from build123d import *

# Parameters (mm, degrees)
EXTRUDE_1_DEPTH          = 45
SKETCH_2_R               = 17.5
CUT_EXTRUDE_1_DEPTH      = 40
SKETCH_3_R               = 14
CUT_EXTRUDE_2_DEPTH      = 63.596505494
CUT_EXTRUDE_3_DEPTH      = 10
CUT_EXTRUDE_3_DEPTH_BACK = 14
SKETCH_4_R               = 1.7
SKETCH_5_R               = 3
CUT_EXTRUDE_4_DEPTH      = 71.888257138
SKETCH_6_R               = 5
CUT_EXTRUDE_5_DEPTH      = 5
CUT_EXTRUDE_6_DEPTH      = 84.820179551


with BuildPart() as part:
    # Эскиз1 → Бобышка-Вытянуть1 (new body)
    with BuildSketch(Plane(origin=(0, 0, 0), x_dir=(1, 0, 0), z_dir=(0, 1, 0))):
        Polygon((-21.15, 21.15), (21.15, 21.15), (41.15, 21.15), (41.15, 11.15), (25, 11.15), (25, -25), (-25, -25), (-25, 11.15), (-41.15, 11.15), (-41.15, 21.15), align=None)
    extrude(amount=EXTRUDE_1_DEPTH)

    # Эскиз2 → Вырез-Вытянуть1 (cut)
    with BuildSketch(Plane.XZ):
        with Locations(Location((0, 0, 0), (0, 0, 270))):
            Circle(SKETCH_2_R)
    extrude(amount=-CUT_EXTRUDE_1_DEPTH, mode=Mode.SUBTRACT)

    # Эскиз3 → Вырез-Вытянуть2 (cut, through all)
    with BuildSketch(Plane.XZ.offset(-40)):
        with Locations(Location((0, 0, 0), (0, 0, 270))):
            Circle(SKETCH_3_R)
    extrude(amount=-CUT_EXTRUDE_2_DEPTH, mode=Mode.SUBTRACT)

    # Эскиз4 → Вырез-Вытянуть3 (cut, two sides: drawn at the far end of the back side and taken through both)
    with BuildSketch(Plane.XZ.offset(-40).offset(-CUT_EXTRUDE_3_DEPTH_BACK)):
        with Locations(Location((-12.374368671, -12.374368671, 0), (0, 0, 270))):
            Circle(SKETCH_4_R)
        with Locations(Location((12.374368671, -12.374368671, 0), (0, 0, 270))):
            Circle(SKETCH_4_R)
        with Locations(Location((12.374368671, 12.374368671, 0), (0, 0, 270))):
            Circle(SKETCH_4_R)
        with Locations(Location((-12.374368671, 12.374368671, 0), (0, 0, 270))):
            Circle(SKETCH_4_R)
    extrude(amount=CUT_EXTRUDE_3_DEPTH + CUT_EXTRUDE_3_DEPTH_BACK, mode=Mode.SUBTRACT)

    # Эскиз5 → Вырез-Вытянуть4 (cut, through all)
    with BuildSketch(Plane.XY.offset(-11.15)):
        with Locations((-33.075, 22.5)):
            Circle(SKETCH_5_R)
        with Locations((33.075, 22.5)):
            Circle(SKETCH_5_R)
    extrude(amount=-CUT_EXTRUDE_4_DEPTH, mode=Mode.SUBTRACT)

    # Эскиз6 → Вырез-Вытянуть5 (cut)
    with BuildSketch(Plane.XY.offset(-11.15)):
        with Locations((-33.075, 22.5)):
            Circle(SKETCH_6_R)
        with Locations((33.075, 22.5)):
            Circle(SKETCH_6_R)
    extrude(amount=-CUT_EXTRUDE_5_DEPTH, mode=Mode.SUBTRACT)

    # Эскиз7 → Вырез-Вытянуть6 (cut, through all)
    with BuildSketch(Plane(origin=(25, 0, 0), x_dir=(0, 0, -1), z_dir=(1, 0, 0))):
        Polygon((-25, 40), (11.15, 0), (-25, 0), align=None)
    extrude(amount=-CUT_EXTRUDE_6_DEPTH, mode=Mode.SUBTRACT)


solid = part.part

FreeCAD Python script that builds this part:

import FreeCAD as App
import Part
import Sketcher


def add_polygon(sketch, points):
    """Adds a closed chain of lines whose ends are joined by coincident constraints."""
    first, n = sketch.GeometryCount, len(points)
    for a, b in zip(points, points[1:] + points[:1]):
        sketch.addGeometry(Part.LineSegment(App.Vector(*a, 0), App.Vector(*b, 0)), False)
    for i in range(n):
        sketch.addConstraint(Sketcher.Constraint("Coincident", first + i, 2, first + (i + 1) % n, 1))

doc = App.newDocument("Part")
body = doc.addObject("PartDesign::Body", "Body")

sketch1 = body.newObject("Sketcher::SketchObject", "Sketch")
sketch1.AttachmentSupport = (doc.getObject("XZ_Plane"), [""])
sketch1.MapMode = "FlatFace"
add_polygon(sketch1, [(41.15, -21.15), (-41.15, -21.15), (-41.15, -11.15), (-25, -11.15), (-25, 25), (25, 25), (25, -11.15), (41.15, -11.15)])
sketch1.addConstraint(Sketcher.Constraint("Horizontal", 0))
sketch1.addConstraint(Sketcher.Constraint("Vertical", 1))
sketch1.addConstraint(Sketcher.Constraint("Horizontal", 2))
sketch1.addConstraint(Sketcher.Constraint("Vertical", 3))
sketch1.addConstraint(Sketcher.Constraint("Horizontal", 4))
sketch1.addConstraint(Sketcher.Constraint("Vertical", 5))
sketch1.addConstraint(Sketcher.Constraint("Horizontal", 6))
sketch1.addConstraint(Sketcher.Constraint("Vertical", 7))
sketch1.addConstraint(Sketcher.Constraint("Symmetric", 2, 2, 5, 2, -2))
sketch1.addConstraint(Sketcher.Constraint("Equal", 2, 6))
sketch1.addConstraint(Sketcher.Constraint("DistanceX", 4, 1, 4, 2, 50.0))
sketch1.addConstraint(Sketcher.Constraint("DistanceY", 1, 1, 1, 2, 10.0))
sketch1.addConstraint(Sketcher.Constraint("DistanceX", 0, 2, 0, 1, 82.3))
sketch1.addConstraint(Sketcher.Constraint("DistanceY", -1, 1, 3, 2, 25.0))
sketch1.addConstraint(Sketcher.Constraint("DistanceY", 3, 1, 3, 2, 36.15))
pad1 = body.newObject("PartDesign::Pad", "Pad")
pad1.Profile = sketch1
pad1.Length = 45
pad1.Reversed = True

sketch2 = body.newObject("Sketcher::SketchObject", "Sketch001")
sketch2.AttachmentSupport = (doc.getObject("XZ_Plane"), [""])
sketch2.MapMode = "FlatFace"
sketch2.addGeometry(Part.Circle(App.Vector(0, 0, 0), App.Vector(0, 0, 1), 17.5), False)
sketch2.addConstraint(Sketcher.Constraint("Coincident", 0, 3, -1, 1))
sketch2.addConstraint(Sketcher.Constraint("Diameter", 0, 35.0))
pocket1 = body.newObject("PartDesign::Pocket", "Pocket")
pocket1.Profile = sketch2
pocket1.Length = 40

sketch3 = body.newObject("Sketcher::SketchObject", "Sketch002")
sketch3.AttachmentSupport = (doc.getObject("XZ_Plane"), [""])
sketch3.MapMode = "FlatFace"
sketch3.AttachmentOffset = App.Placement(App.Vector(0, 0, -40), App.Rotation())
sketch3.addGeometry(Part.Circle(App.Vector(0, 0, 0), App.Vector(0, 0, 1), 14), False)
sketch3.addConstraint(Sketcher.Constraint("Coincident", 0, 3, -1, 1))
sketch3.addConstraint(Sketcher.Constraint("Diameter", 0, 28.0))
pocket2 = body.newObject("PartDesign::Pocket", "Pocket001")
pocket2.Profile = sketch3
pocket2.Type = "ThroughAll"

sketch4 = body.newObject("Sketcher::SketchObject", "Sketch003")
sketch4.AttachmentSupport = (doc.getObject("XZ_Plane"), [""])
sketch4.MapMode = "FlatFace"
sketch4.AttachmentOffset = App.Placement(App.Vector(0, 0, -40), App.Rotation())
sketch4.addGeometry(Part.Circle(App.Vector(-12.374369, -12.374369, 0), App.Vector(0, 0, 1), 1.7), False)
sketch4.addGeometry(Part.Circle(App.Vector(12.374369, -12.374369, 0), App.Vector(0, 0, 1), 1.7), False)
sketch4.addGeometry(Part.Circle(App.Vector(12.374369, 12.374369, 0), App.Vector(0, 0, 1), 1.7), False)
sketch4.addGeometry(Part.Circle(App.Vector(-12.374369, 12.374369, 0), App.Vector(0, 0, 1), 1.7), False)
sketch4.addConstraint(Sketcher.Constraint("Equal", 0, 1))
sketch4.addConstraint(Sketcher.Constraint("Equal", 1, 2))
sketch4.addConstraint(Sketcher.Constraint("Equal", 2, 3))
sketch4.addConstraint(Sketcher.Constraint("Symmetric", 0, 3, 2, 3, -1, 1))
sketch4.addConstraint(Sketcher.Constraint("Symmetric", 1, 3, 3, 3, -1, 1))
sketch4.addConstraint(Sketcher.Constraint("Symmetric", 0, 3, 1, 3, -2))
sketch4.addConstraint(Sketcher.Constraint("Diameter", 0, 3.4))
sketch4.addConstraint(Sketcher.Constraint("DistanceX", 0, 3, -1, 1, 12.374369))
sketch4.addConstraint(Sketcher.Constraint("DistanceY", 0, 3, -1, 1, 12.374369))
pocket3 = body.newObject("PartDesign::Pocket", "Pocket002")
pocket3.Profile = sketch4
pocket3.Type = "TwoLengths"
pocket3.Length = 10
pocket3.Length2 = 14
pocket3.Reversed = True

sketch5 = body.newObject("Sketcher::SketchObject", "Sketch004")
sketch5.AttachmentSupport = (doc.getObject("XY_Plane"), [""])
sketch5.MapMode = "FlatFace"
sketch5.AttachmentOffset = App.Placement(App.Vector(0, 0, -11.15), App.Rotation())
sketch5.addGeometry(Part.Circle(App.Vector(-33.075, 22.5, 0), App.Vector(0, 0, 1), 3), False)
sketch5.addGeometry(Part.Circle(App.Vector(33.075, 22.5, 0), App.Vector(0, 0, 1), 3), False)
sketch5.addConstraint(Sketcher.Constraint("Equal", 0, 1))
sketch5.addConstraint(Sketcher.Constraint("Symmetric", 0, 3, 1, 3, -2))
sketch5.addConstraint(Sketcher.Constraint("Diameter", 0, 6.0))
sketch5.addConstraint(Sketcher.Constraint("DistanceY", -1, 1, 0, 3, 22.5))
sketch5.addConstraint(Sketcher.Constraint("DistanceX", 0, 3, 1, 3, 66.15))
pocket4 = body.newObject("PartDesign::Pocket", "Pocket003")
pocket4.Profile = sketch5
pocket4.Type = "ThroughAll"

sketch6 = body.newObject("Sketcher::SketchObject", "Sketch005")
sketch6.AttachmentSupport = (doc.getObject("XY_Plane"), [""])
sketch6.MapMode = "FlatFace"
sketch6.AttachmentOffset = App.Placement(App.Vector(0, 0, -11.15), App.Rotation())
sketch6.addGeometry(Part.Circle(App.Vector(-33.075, 22.5, 0), App.Vector(0, 0, 1), 5), False)
sketch6.addGeometry(Part.Circle(App.Vector(33.075, 22.5, 0), App.Vector(0, 0, 1), 5), False)
sketch6.addConstraint(Sketcher.Constraint("Equal", 0, 1))
sketch6.addConstraint(Sketcher.Constraint("Symmetric", 0, 3, 1, 3, -2))
sketch6.addConstraint(Sketcher.Constraint("Diameter", 0, 10.0))
sketch6.addConstraint(Sketcher.Constraint("DistanceY", -1, 1, 0, 3, 22.5))
sketch6.addConstraint(Sketcher.Constraint("DistanceX", 0, 3, 1, 3, 66.15))
pocket5 = body.newObject("PartDesign::Pocket", "Pocket004")
pocket5.Profile = sketch6
pocket5.Length = 5

sketch7 = body.newObject("Sketcher::SketchObject", "Sketch006")
sketch7.AttachmentSupport = (doc.getObject("YZ_Plane"), [""])
sketch7.MapMode = "FlatFace"
sketch7.AttachmentOffset = App.Placement(App.Vector(0, 0, 25), App.Rotation())
add_polygon(sketch7, [(0, -11.15), (40, 25), (0, 25)])
sketch7.addConstraint(Sketcher.Constraint("Horizontal", 1))
sketch7.addConstraint(Sketcher.Constraint("Vertical", 2))
sketch7.addConstraint(Sketcher.Constraint("PointOnObject", 1, 2, -2))
sketch7.addConstraint(Sketcher.Constraint("DistanceX", 1, 2, 1, 1, 40.0))
sketch7.addConstraint(Sketcher.Constraint("DistanceY", -1, 1, 0, 2, 25.0))
sketch7.addConstraint(Sketcher.Constraint("DistanceY", 2, 2, 2, 1, 36.15))
pocket6 = body.newObject("PartDesign::Pocket", "Pocket005")
pocket6.Profile = sketch7
pocket6.Type = "ThroughAll"

doc.recompute()
